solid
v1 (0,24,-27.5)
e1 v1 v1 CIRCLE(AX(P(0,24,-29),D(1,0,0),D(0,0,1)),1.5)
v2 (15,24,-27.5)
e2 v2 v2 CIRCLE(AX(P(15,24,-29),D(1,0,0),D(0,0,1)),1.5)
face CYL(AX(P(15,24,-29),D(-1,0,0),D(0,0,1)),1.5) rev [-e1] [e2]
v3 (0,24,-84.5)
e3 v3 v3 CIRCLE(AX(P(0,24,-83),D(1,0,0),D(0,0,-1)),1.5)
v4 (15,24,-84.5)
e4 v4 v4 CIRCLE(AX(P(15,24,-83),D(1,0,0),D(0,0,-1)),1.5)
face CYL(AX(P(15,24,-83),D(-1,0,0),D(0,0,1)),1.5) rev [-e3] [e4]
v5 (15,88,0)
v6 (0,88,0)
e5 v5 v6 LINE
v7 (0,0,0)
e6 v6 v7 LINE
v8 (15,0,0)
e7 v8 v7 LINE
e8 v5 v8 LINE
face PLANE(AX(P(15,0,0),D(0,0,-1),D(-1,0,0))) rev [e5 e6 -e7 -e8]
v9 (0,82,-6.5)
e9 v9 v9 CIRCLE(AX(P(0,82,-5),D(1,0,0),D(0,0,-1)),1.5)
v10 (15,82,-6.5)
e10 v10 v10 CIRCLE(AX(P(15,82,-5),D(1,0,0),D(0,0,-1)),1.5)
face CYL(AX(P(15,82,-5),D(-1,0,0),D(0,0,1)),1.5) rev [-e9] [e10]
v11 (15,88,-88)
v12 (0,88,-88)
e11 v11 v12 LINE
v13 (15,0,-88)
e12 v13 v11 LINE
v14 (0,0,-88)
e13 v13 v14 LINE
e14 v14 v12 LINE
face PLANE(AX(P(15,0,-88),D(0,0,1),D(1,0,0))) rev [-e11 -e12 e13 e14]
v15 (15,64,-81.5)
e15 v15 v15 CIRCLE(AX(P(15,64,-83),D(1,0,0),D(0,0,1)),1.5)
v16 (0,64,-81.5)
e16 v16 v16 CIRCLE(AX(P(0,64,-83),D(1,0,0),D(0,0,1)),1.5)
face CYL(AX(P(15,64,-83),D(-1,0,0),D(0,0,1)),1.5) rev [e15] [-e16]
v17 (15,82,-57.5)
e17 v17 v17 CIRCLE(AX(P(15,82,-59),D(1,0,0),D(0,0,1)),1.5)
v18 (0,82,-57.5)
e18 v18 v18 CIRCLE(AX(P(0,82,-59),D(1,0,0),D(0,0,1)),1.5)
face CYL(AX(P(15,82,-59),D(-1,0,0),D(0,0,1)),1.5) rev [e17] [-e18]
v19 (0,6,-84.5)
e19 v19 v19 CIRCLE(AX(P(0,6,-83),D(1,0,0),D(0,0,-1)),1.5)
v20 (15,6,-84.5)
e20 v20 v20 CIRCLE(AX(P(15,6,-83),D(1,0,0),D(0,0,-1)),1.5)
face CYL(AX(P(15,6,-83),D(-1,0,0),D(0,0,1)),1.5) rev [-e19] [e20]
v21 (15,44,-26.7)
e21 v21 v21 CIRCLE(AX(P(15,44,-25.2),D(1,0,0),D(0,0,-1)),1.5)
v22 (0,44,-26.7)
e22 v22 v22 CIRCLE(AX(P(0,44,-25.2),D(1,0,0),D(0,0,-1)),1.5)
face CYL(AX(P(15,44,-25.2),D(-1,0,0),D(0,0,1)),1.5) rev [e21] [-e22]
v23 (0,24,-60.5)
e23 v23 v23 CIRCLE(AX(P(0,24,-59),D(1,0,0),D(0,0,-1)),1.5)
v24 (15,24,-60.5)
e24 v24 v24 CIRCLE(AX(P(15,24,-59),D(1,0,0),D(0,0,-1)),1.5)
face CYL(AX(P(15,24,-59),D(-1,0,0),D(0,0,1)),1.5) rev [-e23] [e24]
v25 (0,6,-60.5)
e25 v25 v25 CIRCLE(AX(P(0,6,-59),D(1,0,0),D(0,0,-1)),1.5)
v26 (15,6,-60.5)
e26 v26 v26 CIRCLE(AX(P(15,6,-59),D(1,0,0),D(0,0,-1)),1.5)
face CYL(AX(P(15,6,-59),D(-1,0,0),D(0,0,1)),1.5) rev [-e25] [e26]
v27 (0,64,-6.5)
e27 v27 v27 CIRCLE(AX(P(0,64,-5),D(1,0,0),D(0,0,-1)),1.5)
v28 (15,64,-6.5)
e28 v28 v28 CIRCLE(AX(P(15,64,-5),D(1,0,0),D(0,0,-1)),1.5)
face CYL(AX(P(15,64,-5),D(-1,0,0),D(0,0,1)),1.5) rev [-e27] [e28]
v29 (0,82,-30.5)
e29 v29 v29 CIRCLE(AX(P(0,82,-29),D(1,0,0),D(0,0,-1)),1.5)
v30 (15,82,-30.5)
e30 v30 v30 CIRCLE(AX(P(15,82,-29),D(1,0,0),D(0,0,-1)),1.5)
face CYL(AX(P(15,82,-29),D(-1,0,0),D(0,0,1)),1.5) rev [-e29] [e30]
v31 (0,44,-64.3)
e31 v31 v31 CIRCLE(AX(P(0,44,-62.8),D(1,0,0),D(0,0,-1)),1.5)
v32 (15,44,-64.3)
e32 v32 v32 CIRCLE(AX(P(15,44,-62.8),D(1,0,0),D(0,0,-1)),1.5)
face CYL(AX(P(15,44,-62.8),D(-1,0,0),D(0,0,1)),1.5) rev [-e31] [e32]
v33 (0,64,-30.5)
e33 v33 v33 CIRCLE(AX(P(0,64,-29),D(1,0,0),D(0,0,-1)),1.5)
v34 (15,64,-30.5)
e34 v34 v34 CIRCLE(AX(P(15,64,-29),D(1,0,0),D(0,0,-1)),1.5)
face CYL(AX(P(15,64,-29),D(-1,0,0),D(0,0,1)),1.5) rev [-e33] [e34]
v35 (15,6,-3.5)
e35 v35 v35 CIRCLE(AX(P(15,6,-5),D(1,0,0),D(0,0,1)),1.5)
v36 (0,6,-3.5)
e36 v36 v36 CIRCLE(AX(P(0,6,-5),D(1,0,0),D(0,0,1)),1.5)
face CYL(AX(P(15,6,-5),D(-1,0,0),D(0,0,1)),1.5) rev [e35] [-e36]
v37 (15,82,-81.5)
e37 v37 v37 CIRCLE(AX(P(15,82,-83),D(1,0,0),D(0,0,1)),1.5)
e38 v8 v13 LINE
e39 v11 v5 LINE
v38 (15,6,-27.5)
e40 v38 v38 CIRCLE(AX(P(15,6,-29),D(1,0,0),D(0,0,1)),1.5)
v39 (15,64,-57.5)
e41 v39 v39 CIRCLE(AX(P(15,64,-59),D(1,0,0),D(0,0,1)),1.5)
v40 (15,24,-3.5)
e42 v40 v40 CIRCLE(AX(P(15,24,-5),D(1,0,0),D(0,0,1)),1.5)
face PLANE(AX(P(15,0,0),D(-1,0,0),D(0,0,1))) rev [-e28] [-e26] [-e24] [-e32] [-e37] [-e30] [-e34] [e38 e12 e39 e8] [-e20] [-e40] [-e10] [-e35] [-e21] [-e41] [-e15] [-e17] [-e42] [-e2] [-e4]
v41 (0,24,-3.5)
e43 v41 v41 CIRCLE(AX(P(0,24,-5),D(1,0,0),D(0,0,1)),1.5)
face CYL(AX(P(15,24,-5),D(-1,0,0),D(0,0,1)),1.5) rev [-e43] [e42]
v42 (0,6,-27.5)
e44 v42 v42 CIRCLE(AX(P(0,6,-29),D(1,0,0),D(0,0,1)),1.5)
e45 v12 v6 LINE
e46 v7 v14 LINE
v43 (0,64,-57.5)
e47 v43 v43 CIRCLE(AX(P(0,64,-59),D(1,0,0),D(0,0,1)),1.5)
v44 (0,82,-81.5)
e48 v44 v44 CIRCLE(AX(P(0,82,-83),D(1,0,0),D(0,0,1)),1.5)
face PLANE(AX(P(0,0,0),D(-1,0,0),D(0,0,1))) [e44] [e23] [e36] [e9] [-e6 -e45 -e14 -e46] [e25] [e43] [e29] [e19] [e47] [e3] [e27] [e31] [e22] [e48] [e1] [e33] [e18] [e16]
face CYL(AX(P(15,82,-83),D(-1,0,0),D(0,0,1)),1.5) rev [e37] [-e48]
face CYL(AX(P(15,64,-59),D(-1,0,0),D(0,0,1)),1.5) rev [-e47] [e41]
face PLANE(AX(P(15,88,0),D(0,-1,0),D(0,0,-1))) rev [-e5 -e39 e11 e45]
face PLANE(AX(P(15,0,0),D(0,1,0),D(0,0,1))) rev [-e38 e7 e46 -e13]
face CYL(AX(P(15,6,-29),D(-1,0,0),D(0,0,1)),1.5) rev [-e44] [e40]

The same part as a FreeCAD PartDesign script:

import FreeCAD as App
import Part
import Sketcher
Q = App.Units.Quantity

doc = App.newDocument("Part")
params = doc.addObject("Spreadsheet::Sheet", "Params")
for row, (alias, value) in enumerate([
    ("sketch1_diameter", "3 mm"),
    ("sketch1_width", "88 mm"),
    ("pad1_length", "15 mm"),
], start=1):
    params.set(f"A{row}", alias)
    params.set(f"B{row}", "=" + value)
    params.setAlias(f"B{row}", alias)

body = doc.addObject("PartDesign::Body", "Body")

# Sketch on YZ plane
sketch1 = doc.addObject("Sketcher::SketchObject", "Sketch")
body.addObject(sketch1)
sketch1.AttachmentSupport = (doc.YZ_Plane, [""])
sketch1.MapMode = "FlatFace"
sketch1.addGeometry([
    Part.LineSegment(App.Vector(88, 0, 0), App.Vector(0, 0, 0)),  # 0
    Part.LineSegment(App.Vector(0, 0, 0), App.Vector(0, -88, 0)),  # 1
    Part.LineSegment(App.Vector(0, -88, 0), App.Vector(88, -88, 0)),  # 2
    Part.LineSegment(App.Vector(88, -88, 0), App.Vector(88, 0, 0)),  # 3
    Part.Circle(App.Vector(6, -5, 0), App.Vector(0, 0, 1), 1.5),  # 4
    Part.Circle(App.Vector(24, -5, 0), App.Vector(0, 0, 1), 1.5),  # 5
    Part.Circle(App.Vector(6, -29, 0), App.Vector(0, 0, 1), 1.5),  # 6
    Part.Circle(App.Vector(24, -29, 0), App.Vector(0, 0, 1), 1.5),  # 7
    Part.Circle(App.Vector(6, -59, 0), App.Vector(0, 0, 1), 1.5),  # 8
    Part.Circle(App.Vector(24, -59, 0), App.Vector(0, 0, 1), 1.5),  # 9
    Part.Circle(App.Vector(6, -83, 0), App.Vector(0, 0, 1), 1.5),  # 10
    Part.Circle(App.Vector(24, -83, 0), App.Vector(0, 0, 1), 1.5),  # 11
    Part.Circle(App.Vector(44, -25.2, 0), App.Vector(0, 0, 1), 1.5),  # 12
    Part.Circle(App.Vector(64, -5, 0), App.Vector(0, 0, 1), 1.5),  # 13
    Part.Circle(App.Vector(82, -5, 0), App.Vector(0, 0, 1), 1.5),  # 14
    Part.Circle(App.Vector(64, -29, 0), App.Vector(0, 0, 1), 1.5),  # 15
    Part.Circle(App.Vector(82, -29, 0), App.Vector(0, 0, 1), 1.5),  # 16
    Part.Circle(App.Vector(44, -62.8, 0), App.Vector(0, 0, 1), 1.5),  # 17
    Part.Circle(App.Vector(64, -59, 0), App.Vector(0, 0, 1), 1.5),  # 18
    Part.Circle(App.Vector(82, -59, 0), App.Vector(0, 0, 1), 1.5),  # 19
    Part.Circle(App.Vector(64, -83, 0), App.Vector(0, 0, 1), 1.5),  # 20
    Part.Circle(App.Vector(82, -83, 0), App.Vector(0, 0, 1), 1.5),  # 21
], False)
sketch1.addConstraint([
    Sketcher.Constraint("Coincident", 0, 2, 1, 1),
    Sketcher.Constraint("Coincident", 1, 2, 2, 1),
    Sketcher.Constraint("Coincident", 2, 2, 3, 1),
    Sketcher.Constraint("Coincident", 3, 2, 0, 1),
    Sketcher.Constraint("Horizontal", 0),
    Sketcher.Constraint("Vertical", 1),
    Sketcher.Constraint("Horizontal", 2),
    Sketcher.Constraint("Vertical", 3),
    Sketcher.Constraint("Coincident", 0, 2, -1, 1),
    Sketcher.Constraint("Equal", 4, 5),
    Sketcher.Constraint("Equal", 5, 6),
    Sketcher.Constraint("Equal", 6, 7),
    Sketcher.Constraint("Equal", 7, 8),
    Sketcher.Constraint("Equal", 8, 9),
    Sketcher.Constraint("Equal", 9, 10),
    Sketcher.Constraint("Equal", 10, 11),
    Sketcher.Constraint("Equal", 11, 12),
    Sketcher.Constraint("Equal", 12, 13),
    Sketcher.Constraint("Equal", 13, 14),
    Sketcher.Constraint("Equal", 14, 15),
    Sketcher.Constraint("Equal", 15, 16),
    Sketcher.Constraint("Equal", 16, 17),
    Sketcher.Constraint("Equal", 17, 18),
    Sketcher.Constraint("Equal", 18, 19),
    Sketcher.Constraint("Equal", 19, 20),
    Sketcher.Constraint("Equal", 20, 21),
    Sketcher.Constraint("Horizontal", 4, 3, 5, 3),
    Sketcher.Constraint("Horizontal", 6, 3, 7, 3),
    Sketcher.Constraint("Horizontal", 8, 3, 9, 3),
    Sketcher.Constraint("Horizontal", 10, 3, 11, 3),
    Sketcher.Constraint("Horizontal", 5, 3, 13, 3),
    Sketcher.Constraint("Horizontal", 13, 3, 14, 3),
    Sketcher.Constraint("Horizontal", 7, 3, 15, 3),
    Sketcher.Constraint("Horizontal", 15, 3, 16, 3),
    Sketcher.Constraint("Horizontal", 9, 3, 18, 3),
    Sketcher.Constraint("Horizontal", 18, 3, 19, 3),
    Sketcher.Constraint("Horizontal", 11, 3, 20, 3),
    Sketcher.Constraint("Horizontal", 20, 3, 21, 3),
    Sketcher.Constraint("Vertical", 4, 3, 6, 3),
    Sketcher.Constraint("Vertical", 5, 3, 7, 3),
    Sketcher.Constraint("Vertical", 6, 3, 8, 3),
    Sketcher.Constraint("Vertical", 7, 3, 9, 3),
    Sketcher.Constraint("Vertical", 8, 3, 10, 3),
    Sketcher.Constraint("Vertical", 9, 3, 11, 3),
    Sketcher.Constraint("Vertical", 13, 3, 15, 3),
    Sketcher.Constraint("Vertical", 14, 3, 16, 3),
    Sketcher.Constraint("Vertical", 12, 3, 17, 3),
    Sketcher.Constraint("Vertical", 15, 3, 18, 3),
    Sketcher.Constraint("Vertical", 16, 3, 19, 3),
    Sketcher.Constraint("Vertical", 18, 3, 20, 3),
    Sketcher.Constraint("Vertical", 19, 3, 21, 3),
    Sketcher.Constraint("Equal", 2, 1),
    Sketcher.Constraint("Diameter", 4, Q("3 mm")),
    Sketcher.Constraint("DistanceX", 0, 2, 0, 1, Q("88 mm")),
    Sketcher.Constraint("DistanceX", -1, 1, 4, 3, Q("6 mm")),
    Sketcher.Constraint("DistanceY", 4, 3, -1, 1, Q("5 mm")),
    Sketcher.Constraint("DistanceX", -1, 1, 5, 3, Q("24 mm")),
    Sketcher.Constraint("DistanceY", 6, 3, -1, 1, Q("29 mm")),
    Sketcher.Constraint("DistanceY", 8, 3, -1, 1, Q("59 mm")),
    Sketcher.Constraint("DistanceY", 10, 3, -1, 1, Q("83 mm")),
    Sketcher.Constraint("DistanceX", -1, 1, 12, 3, Q("44 mm")),
    Sketcher.Constraint("DistanceX", -1, 1, 13, 3, Q("64 mm")),
    Sketcher.Constraint("DistanceX", -1, 1, 14, 3, Q("82 mm")),
    Sketcher.Constraint("DistanceY", 12, 3, -1, 1, Q("25.2 mm")),
    Sketcher.Constraint("DistanceY", 17, 3, -1, 1, Q("62.8 mm")),
])
sketch1.setExpression("Constraints[52]", "Params.sketch1_diameter")
sketch1.setExpression("Constraints[53]", "Params.sketch1_width")
pad1 = doc.addObject("PartDesign::Pad", "Pad")
body.addObject(pad1)
pad1.Profile = sketch1
pad1.setExpression("Length", "Params.pad1_length")

doc.recompute()
